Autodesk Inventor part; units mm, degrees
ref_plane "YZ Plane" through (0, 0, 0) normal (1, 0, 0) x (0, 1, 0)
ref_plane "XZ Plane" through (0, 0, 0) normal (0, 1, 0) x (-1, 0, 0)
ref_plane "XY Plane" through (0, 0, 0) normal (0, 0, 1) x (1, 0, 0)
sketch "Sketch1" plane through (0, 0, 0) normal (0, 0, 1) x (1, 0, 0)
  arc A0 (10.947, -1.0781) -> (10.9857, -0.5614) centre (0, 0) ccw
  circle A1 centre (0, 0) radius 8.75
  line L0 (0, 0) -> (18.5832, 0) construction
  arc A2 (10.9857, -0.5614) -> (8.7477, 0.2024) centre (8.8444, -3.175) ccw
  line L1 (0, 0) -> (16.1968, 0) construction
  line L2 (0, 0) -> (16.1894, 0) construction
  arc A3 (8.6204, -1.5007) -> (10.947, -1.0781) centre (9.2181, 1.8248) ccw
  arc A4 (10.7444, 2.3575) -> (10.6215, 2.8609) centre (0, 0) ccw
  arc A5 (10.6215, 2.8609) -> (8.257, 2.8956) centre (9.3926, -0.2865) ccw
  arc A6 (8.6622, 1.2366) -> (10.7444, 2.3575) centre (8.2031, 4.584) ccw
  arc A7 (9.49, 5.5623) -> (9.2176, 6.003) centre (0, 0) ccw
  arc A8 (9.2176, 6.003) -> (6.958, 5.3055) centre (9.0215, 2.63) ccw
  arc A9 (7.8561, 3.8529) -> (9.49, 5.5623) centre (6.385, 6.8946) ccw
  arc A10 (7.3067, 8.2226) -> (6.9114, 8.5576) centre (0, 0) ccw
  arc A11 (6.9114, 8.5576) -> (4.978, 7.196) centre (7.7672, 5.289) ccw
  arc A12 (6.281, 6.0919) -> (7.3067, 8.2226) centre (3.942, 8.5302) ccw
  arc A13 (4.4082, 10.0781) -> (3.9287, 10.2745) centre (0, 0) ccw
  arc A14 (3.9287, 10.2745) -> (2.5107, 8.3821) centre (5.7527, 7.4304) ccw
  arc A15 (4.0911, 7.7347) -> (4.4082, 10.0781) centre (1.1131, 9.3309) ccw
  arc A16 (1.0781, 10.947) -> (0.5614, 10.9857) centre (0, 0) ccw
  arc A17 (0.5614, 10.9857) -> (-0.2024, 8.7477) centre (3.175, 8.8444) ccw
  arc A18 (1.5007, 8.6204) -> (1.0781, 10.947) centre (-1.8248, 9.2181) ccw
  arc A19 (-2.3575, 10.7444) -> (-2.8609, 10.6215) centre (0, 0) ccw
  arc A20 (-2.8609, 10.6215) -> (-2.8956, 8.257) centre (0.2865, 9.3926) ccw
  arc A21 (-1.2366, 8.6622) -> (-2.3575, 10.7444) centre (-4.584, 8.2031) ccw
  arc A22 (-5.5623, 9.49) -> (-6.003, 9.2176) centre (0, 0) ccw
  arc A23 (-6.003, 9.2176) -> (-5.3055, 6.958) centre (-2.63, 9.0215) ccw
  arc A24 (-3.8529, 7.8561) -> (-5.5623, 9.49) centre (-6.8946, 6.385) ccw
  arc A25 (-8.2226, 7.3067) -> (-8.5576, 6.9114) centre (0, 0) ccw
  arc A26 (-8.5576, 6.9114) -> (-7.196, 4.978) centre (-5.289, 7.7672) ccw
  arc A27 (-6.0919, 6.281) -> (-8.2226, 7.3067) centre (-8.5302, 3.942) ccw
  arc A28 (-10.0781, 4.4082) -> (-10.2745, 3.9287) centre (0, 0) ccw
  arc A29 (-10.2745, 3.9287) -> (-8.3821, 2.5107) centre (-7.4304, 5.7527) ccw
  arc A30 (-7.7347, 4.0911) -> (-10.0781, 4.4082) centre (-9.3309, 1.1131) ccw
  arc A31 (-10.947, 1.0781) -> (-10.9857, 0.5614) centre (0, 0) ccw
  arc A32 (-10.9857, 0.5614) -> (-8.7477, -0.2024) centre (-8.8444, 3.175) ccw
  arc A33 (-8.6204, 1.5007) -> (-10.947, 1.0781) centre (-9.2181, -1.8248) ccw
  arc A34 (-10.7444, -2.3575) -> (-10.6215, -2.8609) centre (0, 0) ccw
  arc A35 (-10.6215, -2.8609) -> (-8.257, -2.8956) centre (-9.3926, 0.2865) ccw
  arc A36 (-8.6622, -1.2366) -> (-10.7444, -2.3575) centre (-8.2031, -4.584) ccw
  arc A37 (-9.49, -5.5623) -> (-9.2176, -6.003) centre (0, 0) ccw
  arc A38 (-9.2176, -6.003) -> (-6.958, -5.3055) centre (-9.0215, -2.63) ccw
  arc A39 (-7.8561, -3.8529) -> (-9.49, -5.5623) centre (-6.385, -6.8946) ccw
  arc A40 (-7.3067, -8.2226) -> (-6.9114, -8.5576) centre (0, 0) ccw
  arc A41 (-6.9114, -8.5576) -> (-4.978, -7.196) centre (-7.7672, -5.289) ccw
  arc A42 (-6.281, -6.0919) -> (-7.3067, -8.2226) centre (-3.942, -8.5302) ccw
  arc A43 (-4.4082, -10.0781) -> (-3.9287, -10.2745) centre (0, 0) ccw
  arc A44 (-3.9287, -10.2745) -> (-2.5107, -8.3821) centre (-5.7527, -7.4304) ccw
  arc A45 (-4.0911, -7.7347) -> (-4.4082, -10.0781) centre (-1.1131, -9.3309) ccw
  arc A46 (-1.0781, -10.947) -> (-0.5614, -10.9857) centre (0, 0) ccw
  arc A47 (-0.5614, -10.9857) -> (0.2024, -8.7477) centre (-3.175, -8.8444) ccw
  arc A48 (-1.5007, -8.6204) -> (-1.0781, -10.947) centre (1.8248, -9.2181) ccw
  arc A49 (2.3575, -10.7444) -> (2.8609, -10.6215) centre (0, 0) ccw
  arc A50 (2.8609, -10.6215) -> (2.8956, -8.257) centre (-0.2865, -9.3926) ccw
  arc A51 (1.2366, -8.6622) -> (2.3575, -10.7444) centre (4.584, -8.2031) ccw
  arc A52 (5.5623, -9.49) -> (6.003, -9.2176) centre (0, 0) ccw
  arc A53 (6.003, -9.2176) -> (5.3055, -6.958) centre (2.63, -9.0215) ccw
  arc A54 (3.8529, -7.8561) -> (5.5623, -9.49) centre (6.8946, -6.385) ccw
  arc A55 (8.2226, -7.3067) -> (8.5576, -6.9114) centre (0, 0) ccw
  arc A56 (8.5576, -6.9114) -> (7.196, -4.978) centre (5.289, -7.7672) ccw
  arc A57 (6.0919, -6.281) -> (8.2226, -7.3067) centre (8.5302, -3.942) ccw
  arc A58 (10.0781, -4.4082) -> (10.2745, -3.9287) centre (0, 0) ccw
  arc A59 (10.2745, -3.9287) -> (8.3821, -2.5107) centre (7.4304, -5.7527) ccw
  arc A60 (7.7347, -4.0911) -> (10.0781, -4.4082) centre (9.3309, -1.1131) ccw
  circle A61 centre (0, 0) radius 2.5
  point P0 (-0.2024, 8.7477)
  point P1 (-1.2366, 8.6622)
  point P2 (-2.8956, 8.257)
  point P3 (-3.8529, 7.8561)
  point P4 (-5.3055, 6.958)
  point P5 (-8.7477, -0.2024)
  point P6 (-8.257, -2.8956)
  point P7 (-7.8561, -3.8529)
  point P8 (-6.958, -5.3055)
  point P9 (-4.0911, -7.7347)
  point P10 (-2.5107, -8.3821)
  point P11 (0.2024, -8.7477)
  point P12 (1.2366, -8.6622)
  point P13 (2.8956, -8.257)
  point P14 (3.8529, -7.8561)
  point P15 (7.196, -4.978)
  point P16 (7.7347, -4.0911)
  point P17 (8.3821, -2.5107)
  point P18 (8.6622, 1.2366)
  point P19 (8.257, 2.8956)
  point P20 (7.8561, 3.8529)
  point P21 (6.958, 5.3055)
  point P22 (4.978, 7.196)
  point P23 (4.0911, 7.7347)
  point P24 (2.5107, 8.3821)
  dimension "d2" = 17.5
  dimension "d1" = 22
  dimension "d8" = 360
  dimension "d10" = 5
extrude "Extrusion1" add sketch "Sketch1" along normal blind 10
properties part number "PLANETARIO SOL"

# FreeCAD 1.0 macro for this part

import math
import FreeCAD as App
import Part
import Sketcher
from FreeCAD import Vector

doc = App.newDocument("Part")
body = doc.addObject("PartDesign::Body", "Body")

# Sketch on XY plane
sketch1 = doc.addObject("Sketcher::SketchObject", "Sketch")
body.addObject(sketch1)
sketch1.AttachmentSupport = (doc.XY_Plane, [""])
sketch1.MapMode = "FlatFace"
sketch1.addGeometry([
    Part.ArcOfCircle(Part.Circle(Vector(9.2181, 1.8248, 0), Vector(0, 0, 1), 3.378786), math.radians(-100.18912), math.radians(-59.222952)),  # 0
    Part.ArcOfCircle(Part.Circle(Vector(-0.137695, 0.011925, 0), Vector(0, 0, 1), 11.13816), math.radians(-5.616184), math.radians(-2.950544)),  # 1
    Part.ArcOfCircle(Part.Circle(Vector(8.8444, -3.175, 0), Vector(0, 0, 1), 3.378768), math.radians(50.672532), math.radians(91.640016)),  # 2
    Part.ArcOfCircle(Part.Circle(Vector(0, 0, 0), Vector(0, 0, 1), 8.75), math.radians(1.325445), math.radians(8.124546)),  # 3
    Part.ArcOfCircle(Part.Circle(Vector(8.2031, 4.584, 0), Vector(0, 0, 1), 3.378736), math.radians(-82.190537), math.radians(-41.222457)),  # 4
    Part.ArcOfCircle(Part.Circle(Vector(-0.086363, -0.020018, 0), Vector(0, 0, 1), 11.088643), math.radians(12.380928), math.radians(15.05867)),  # 5
    Part.ArcOfCircle(Part.Circle(Vector(9.392823, -0.285364, 0), Vector(0, 0, 1), 3.377665), math.radians(68.668384), math.radians(109.650059)),  # 6
    Part.ArcOfCircle(Part.Circle(Vector(0, 0, 0), Vector(0, 0, 1), 8.75), math.radians(19.324966), math.radians(26.124911)),  # 7
    Part.ArcOfCircle(Part.Circle(Vector(6.385, 6.8946, 0), Vector(0, 0, 1), 3.378768), math.radians(-64.189545), math.radians(-23.223306)),  # 8
    Part.ArcOfCircle(Part.Circle(Vector(-0.062015, -0.037336, 0), Vector(0, 0, 1), 11.072349), math.radians(30.379927), math.radians(33.061122)),  # 9
    Part.ArcOfCircle(Part.Circle(Vector(9.0215, 2.63, 0), Vector(0, 0, 1), 3.378696), math.radians(86.672674), math.radians(127.641483)),  # 10
    Part.ArcOfCircle(Part.Circle(Vector(0, 0, 0), Vector(0, 0, 1), 8.75), math.radians(37.325651), math.radians(44.124394)),  # 11
    Part.ArcOfCircle(Part.Circle(Vector(3.942, 8.5302, 0), Vector(0, 0, 1), 3.378791), math.radians(-46.190767), math.radians(-5.223446)),  # 12
    Part.ArcOfCircle(Part.Circle(Vector(-0.051491, -0.059339, 0), Vector(0, 0, 1), 11.078514), math.radians(48.380113), math.radians(51.06016)),  # 13
    Part.ArcOfCircle(Part.Circle(Vector(7.7672, 5.289, 0), Vector(0, 0, 1), 3.378778), math.radians(104.672097), math.radians(145.639248)),  # 14
    Part.ArcOfCircle(Part.Circle(Vector(0, 0, 0), Vector(0, 0, 1), 8.75), math.radians(55.325553), math.radians(62.12438)),  # 15
    Part.ArcOfCircle(Part.Circle(Vector(1.1131, 9.3309, 0), Vector(0, 0, 1), 3.378807), math.radians(-28.191189), math.radians(12.77638)),  # 16
    Part.ArcOfCircle(Part.Circle(Vector(0.009338, 0.022051, 0), Vector(0, 0, 1), 10.97607), math.radians(66.373773), math.radians(69.078869)),  # 17
    Part.ArcOfCircle(Part.Circle(Vector(5.7527, 7.4304, 0), Vector(0, 0, 1), 3.37874), math.radians(122.673176), math.radians(163.640221)),  # 18
    Part.ArcOfCircle(Part.Circle(Vector(0, 0, 0), Vector(0, 0, 1), 8.75), math.radians(73.325404), math.radians(80.124516)),  # 19
    Part.ArcOfCircle(Part.Circle(Vector(-1.8248, 9.2181, 0), Vector(0, 0, 1), 3.378786), math.radians(-10.18912), math.radians(30.777048)),  # 20
    Part.ArcOfCircle(Part.Circle(Vector(-0.011925, -0.137695, 0), Vector(0, 0, 1), 11.13816), math.radians(84.383816), math.radians(87.049456)),  # 21
    Part.ArcOfCircle(Part.Circle(Vector(3.175, 8.8444, 0), Vector(0, 0, 1), 3.378768), math.radians(140.672532), math.radians(181.640016)),  # 22
    Part.ArcOfCircle(Part.Circle(Vector(0, 0, 0), Vector(0, 0, 1), 8.75), math.radians(91.325445), math.radians(98.124546)),  # 23
    Part.ArcOfCircle(Part.Circle(Vector(-4.584, 8.2031, 0), Vector(0, 0, 1), 3.378736), math.radians(7.809463), math.radians(48.777543)),  # 24
    Part.ArcOfCircle(Part.Circle(Vector(0.020018, -0.086363, 0), Vector(0, 0, 1), 11.088643), math.radians(102.380928), math.radians(105.05867)),  # 25
    Part.ArcOfCircle(Part.Circle(Vector(0.285364, 9.392823, 0), Vector(0, 0, 1), 3.377665), math.radians(158.668384), math.radians(199.650059)),  # 26
    Part.ArcOfCircle(Part.Circle(Vector(0, 0, 0), Vector(0, 0, 1), 8.75), math.radians(109.324966), math.radians(116.124911)),  # 27
    Part.ArcOfCircle(Part.Circle(Vector(-6.8946, 6.385, 0), Vector(0, 0, 1), 3.378768), math.radians(25.810455), math.radians(66.776694)),  # 28
    Part.ArcOfCircle(Part.Circle(Vector(0.037336, -0.062015, 0), Vector(0, 0, 1), 11.072349), math.radians(120.379927), math.radians(123.061122)),  # 29
    Part.ArcOfCircle(Part.Circle(Vector(-2.63, 9.0215, 0), Vector(0, 0, 1), 3.378696), math.radians(176.672674), math.radians(217.641483)),  # 30
    Part.ArcOfCircle(Part.Circle(Vector(0, 0, 0), Vector(0, 0, 1), 8.75), math.radians(127.325651), math.radians(134.124394)),  # 31
    Part.ArcOfCircle(Part.Circle(Vector(-8.5302, 3.942, 0), Vector(0, 0, 1), 3.378791), math.radians(43.809233), math.radians(84.776554)),  # 32
    Part.ArcOfCircle(Part.Circle(Vector(0.059339, -0.051491, 0), Vector(0, 0, 1), 11.078514), math.radians(138.380113), math.radians(141.06016)),  # 33
    Part.ArcOfCircle(Part.Circle(Vector(-5.289, 7.7672, 0), Vector(0, 0, 1), 3.378778), math.radians(-165.327903), math.radians(-124.360752)),  # 34
    Part.ArcOfCircle(Part.Circle(Vector(0, 0, 0), Vector(0, 0, 1), 8.75), math.radians(145.325553), math.radians(152.12438)),  # 35
    Part.ArcOfCircle(Part.Circle(Vector(-9.3309, 1.1131, 0), Vector(0, 0, 1), 3.378807), math.radians(61.808811), math.radians(102.77638)),  # 36
    Part.ArcOfCircle(Part.Circle(Vector(-0.022051, 0.009338, 0), Vector(0, 0, 1), 10.97607), math.radians(156.373773), math.radians(159.078869)),  # 37
    Part.ArcOfCircle(Part.Circle(Vector(-7.4304, 5.7527, 0), Vector(0, 0, 1), 3.37874), math.radians(-147.326824), math.radians(-106.359779)),  # 38
    Part.ArcOfCircle(Part.Circle(Vector(0, 0, 0), Vector(0, 0, 1), 8.75), math.radians(163.325404), math.radians(170.124516)),  # 39
    Part.ArcOfCircle(Part.Circle(Vector(-9.2181, -1.8248, 0), Vector(0, 0, 1), 3.378786), math.radians(79.81088), math.radians(120.777048)),  # 40
    Part.ArcOfCircle(Part.Circle(Vector(0.137695, -0.011925, 0), Vector(0, 0, 1), 11.13816), math.radians(174.383816), math.radians(177.049456)),  # 41
    Part.ArcOfCircle(Part.Circle(Vector(-8.8444, 3.175, 0), Vector(0, 0, 1), 3.378768), math.radians(-129.327468), math.radians(-88.359984)),  # 42
    Part.ArcOfCircle(Part.Circle(Vector(0, 0, 0), Vector(0, 0, 1), 8.75), math.radians(-178.674555), math.radians(-171.875454)),  # 43
    Part.ArcOfCircle(Part.Circle(Vector(-8.2031, -4.584, 0), Vector(0, 0, 1), 3.378736), math.radians(97.809463), math.radians(138.777543)),  # 44
    Part.ArcOfCircle(Part.Circle(Vector(0.086363, 0.020018, 0), Vector(0, 0, 1), 11.088643), math.radians(-167.619072), math.radians(-164.94133)),  # 45
    Part.ArcOfCircle(Part.Circle(Vector(-9.392823, 0.285364, 0), Vector(0, 0, 1), 3.377665), math.radians(-111.331616), math.radians(-70.349941)),  # 46
    Part.ArcOfCircle(Part.Circle(Vector(0, 0, 0), Vector(0, 0, 1), 8.75), math.radians(-160.675034), math.radians(-153.875089)),  # 47
    Part.ArcOfCircle(Part.Circle(Vector(-6.385, -6.8946, 0), Vector(0, 0, 1), 3.378768), math.radians(115.810455), math.radians(156.776694)),  # 48
    Part.ArcOfCircle(Part.Circle(Vector(0.062015, 0.037336, 0), Vector(0, 0, 1), 11.072349), math.radians(-149.620073), math.radians(-146.938878)),  # 49
    Part.ArcOfCircle(Part.Circle(Vector(-9.0215, -2.63, 0), Vector(0, 0, 1), 3.378696), math.radians(-93.327326), math.radians(-52.358517)),  # 50
    Part.ArcOfCircle(Part.Circle(Vector(0, 0, 0), Vector(0, 0, 1), 8.75), math.radians(-142.674349), math.radians(-135.875606)),  # 51
    Part.ArcOfCircle(Part.Circle(Vector(-3.942, -8.5302, 0), Vector(0, 0, 1), 3.378791), math.radians(133.809233), math.radians(174.776554)),  # 52
    Part.ArcOfCircle(Part.Circle(Vector(0.051491, 0.059339, 0), Vector(0, 0, 1), 11.078514), math.radians(-131.619887), math.radians(-128.93984)),  # 53
    Part.ArcOfCircle(Part.Circle(Vector(-7.7672, -5.289, 0), Vector(0, 0, 1), 3.378778), math.radians(-75.327903), math.radians(-34.360752)),  # 54
    Part.ArcOfCircle(Part.Circle(Vector(0, 0, 0), Vector(0, 0, 1), 8.75), math.radians(-124.674447), math.radians(-117.87562)),  # 55
    Part.ArcOfCircle(Part.Circle(Vector(-1.1131, -9.3309, 0), Vector(0, 0, 1), 3.378807), math.radians(151.808811), math.radians(192.77638)),  # 56
    Part.ArcOfCircle(Part.Circle(Vector(-0.009338, -0.022051, 0), Vector(0, 0, 1), 10.97607), math.radians(-113.626227), math.radians(-110.921131)),  # 57
    Part.ArcOfCircle(Part.Circle(Vector(-5.7527, -7.4304, 0), Vector(0, 0, 1), 3.37874), math.radians(-57.326824), math.radians(-16.359779)),  # 58
    Part.ArcOfCircle(Part.Circle(Vector(0, 0, 0), Vector(0, 0, 1), 8.75), math.radians(-106.674596), math.radians(-99.875484)),  # 59
    Part.ArcOfCircle(Part.Circle(Vector(1.8248, -9.2181, 0), Vector(0, 0, 1), 3.378786), math.radians(169.81088), math.radians(210.777048)),  # 60
    Part.ArcOfCircle(Part.Circle(Vector(0.011925, 0.137695, 0), Vector(0, 0, 1), 11.13816), math.radians(-95.616184), math.radians(-92.950544)),  # 61
    Part.ArcOfCircle(Part.Circle(Vector(-3.175, -8.8444, 0), Vector(0, 0, 1), 3.378768), math.radians(-39.327468), math.radians(1.640016)),  # 62
    Part.ArcOfCircle(Part.Circle(Vector(0, 0, 0), Vector(0, 0, 1), 8.75), math.radians(-88.674555), math.radians(-81.875454)),  # 63
    Part.ArcOfCircle(Part.Circle(Vector(4.584, -8.2031, 0), Vector(0, 0, 1), 3.378736), math.radians(-172.190537), math.radians(-131.222457)),  # 64
    Part.ArcOfCircle(Part.Circle(Vector(-0.020018, 0.086363, 0), Vector(0, 0, 1), 11.088643), math.radians(-77.619072), math.radians(-74.94133)),  # 65
    Part.ArcOfCircle(Part.Circle(Vector(-0.285364, -9.392823, 0), Vector(0, 0, 1), 3.377665), math.radians(-21.331616), math.radians(19.650059)),  # 66
    Part.ArcOfCircle(Part.Circle(Vector(0, 0, 0), Vector(0, 0, 1), 8.75), math.radians(-70.675034), math.radians(-63.875089)),  # 67
    Part.ArcOfCircle(Part.Circle(Vector(6.8946, -6.385, 0), Vector(0, 0, 1), 3.378768), math.radians(-154.189545), math.radians(-113.223306)),  # 68
    Part.ArcOfCircle(Part.Circle(Vector(-0.037336, 0.062015, 0), Vector(0, 0, 1), 11.072349), math.radians(-59.620073), math.radians(-56.938878)),  # 69
    Part.ArcOfCircle(Part.Circle(Vector(2.63, -9.0215, 0), Vector(0, 0, 1), 3.378696), math.radians(-3.327326), math.radians(37.641483)),  # 70
    Part.ArcOfCircle(Part.Circle(Vector(0, 0, 0), Vector(0, 0, 1), 8.75), math.radians(-52.674349), math.radians(-45.875606)),  # 71
    Part.ArcOfCircle(Part.Circle(Vector(8.5302, -3.942, 0), Vector(0, 0, 1), 3.378791), math.radians(-136.190767), math.radians(-95.223446)),  # 72
    Part.ArcOfCircle(Part.Circle(Vector(-0.059339, 0.051491, 0), Vector(0, 0, 1), 11.078514), math.radians(-41.619887), math.radians(-38.93984)),  # 73
    Part.ArcOfCircle(Part.Circle(Vector(5.289, -7.7672, 0), Vector(0, 0, 1), 3.378778), math.radians(14.672097), math.radians(55.639248)),  # 74
    Part.ArcOfCircle(Part.Circle(Vector(0, 0, 0), Vector(0, 0, 1), 8.75), math.radians(-34.674447), math.radians(-27.87562)),  # 75
    Part.ArcOfCircle(Part.Circle(Vector(9.3309, -1.1131, 0), Vector(0, 0, 1), 3.378807), math.radians(-118.191189), math.radians(-77.22362)),  # 76
    Part.ArcOfCircle(Part.Circle(Vector(0.022051, -0.009338, 0), Vector(0, 0, 1), 10.97607), math.radians(-23.626227), math.radians(-20.921131)),  # 77
    Part.ArcOfCircle(Part.Circle(Vector(7.4304, -5.7527, 0), Vector(0, 0, 1), 3.37874), math.radians(32.673176), math.radians(73.640221)),  # 78
    Part.ArcOfCircle(Part.Circle(Vector(0, 0, 0), Vector(0, 0, 1), 8.75), math.radians(-16.674596), math.radians(-9.875484)),  # 79
    Part.Circle(Vector(0, 0, 0), Vector(0, 0, 1), 2.5),  # 80
], False)
sketch1.addConstraint([
    Sketcher.Constraint("Coincident", 0, 2, 1, 1),
    Sketcher.Constraint("Coincident", 1, 2, 2, 1),
    Sketcher.Constraint("Coincident", 2, 2, 3, 1),
    Sketcher.Constraint("Coincident", 3, 2, 4, 1),
    Sketcher.Constraint("Coincident", 4, 2, 5, 1),
    Sketcher.Constraint("Coincident", 5, 2, 6, 1),
    Sketcher.Constraint("Coincident", 6, 2, 7, 1),
    Sketcher.Constraint("Coincident", 7, 2, 8, 1),
    Sketcher.Constraint("Coincident", 8, 2, 9, 1),
    Sketcher.Constraint("Coincident", 9, 2, 10, 1),
    Sketcher.Constraint("Coincident", 10, 2, 11, 1),
    Sketcher.Constraint("Coincident", 11, 2, 12, 1),
    Sketcher.Constraint("Coincident", 12, 2, 13, 1),
    Sketcher.Constraint("Coincident", 13, 2, 14, 1),
    Sketcher.Constraint("Coincident", 14, 2, 15, 1),
    Sketcher.Constraint("Coincident", 15, 2, 16, 1),
    Sketcher.Constraint("Coincident", 16, 2, 17, 1),
    Sketcher.Constraint("Coincident", 17, 2, 18, 1),
    Sketcher.Constraint("Coincident", 18, 2, 19, 1),
    Sketcher.Constraint("Coincident", 19, 2, 20, 1),
    Sketcher.Constraint("Coincident", 20, 2, 21, 1),
    Sketcher.Constraint("Coincident", 21, 2, 22, 1),
    Sketcher.Constraint("Coincident", 22, 2, 23, 1),
    Sketcher.Constraint("Coincident", 23, 2, 24, 1),
    Sketcher.Constraint("Coincident", 24, 2, 25, 1),
    Sketcher.Constraint("Coincident", 25, 2, 26, 1),
    Sketcher.Constraint("Coincident", 26, 2, 27, 1),
    Sketcher.Constraint("Coincident", 27, 2, 28, 1),
    Sketcher.Constraint("Coincident", 28, 2, 29, 1),
    Sketcher.Constraint("Coincident", 29, 2, 30, 1),
    Sketcher.Constraint("Coincident", 30, 2, 31, 1),
    Sketcher.Constraint("Coincident", 31, 2, 32, 1),
    Sketcher.Constraint("Coincident", 32, 2, 33, 1),
    Sketcher.Constraint("Coincident", 33, 2, 34, 1),
    Sketcher.Constraint("Coincident", 34, 2, 35, 1),
    Sketcher.Constraint("Coincident", 35, 2, 36, 1),
    Sketcher.Constraint("Coincident", 36, 2, 37, 1),
    Sketcher.Constraint("Coincident", 37, 2, 38, 1),
    Sketcher.Constraint("Coincident", 38, 2, 39, 1),
    Sketcher.Constraint("Coincident", 39, 2, 40, 1),
    Sketcher.Constraint("Coincident", 40, 2, 41, 1),
    Sketcher.Constraint("Coincident", 41, 2, 42, 1),
    Sketcher.Constraint("Coincident", 42, 2, 43, 1),
    Sketcher.Constraint("Coincident", 43, 2, 44, 1),
    Sketcher.Constraint("Coincident", 44, 2, 45, 1),
    Sketcher.Constraint("Coincident", 45, 2, 46, 1),
    Sketcher.Constraint("Coincident", 46, 2, 47, 1),
    Sketcher.Constraint("Coincident", 47, 2, 48, 1),
    Sketcher.Constraint("Coincident", 48, 2, 49, 1),
    Sketcher.Constraint("Coincident", 49, 2, 50, 1),
    Sketcher.Constraint("Coincident", 50, 2, 51, 1),
    Sketcher.Constraint("Coincident", 51, 2, 52, 1),
    Sketcher.Constraint("Coincident", 52, 2, 53, 1),
    Sketcher.Constraint("Coincident", 53, 2, 54, 1),
    Sketcher.Constraint("Coincident", 54, 2, 55, 1),
    Sketcher.Constraint("Coincident", 55, 2, 56, 1),
    Sketcher.Constraint("Coincident", 56, 2, 57, 1),
    Sketcher.Constraint("Coincident", 57, 2, 58, 1),
    Sketcher.Constraint("Coincident", 58, 2, 59, 1),
    Sketcher.Constraint("Coincident", 59, 2, 60, 1),
    Sketcher.Constraint("Coincident", 60, 2, 61, 1),
    Sketcher.Constraint("Coincident", 61, 2, 62, 1),
    Sketcher.Constraint("Coincident", 62, 2, 63, 1),
    Sketcher.Constraint("Coincident", 63, 2, 64, 1),
    Sketcher.Constraint("Coincident", 64, 2, 65, 1),
    Sketcher.Constraint("Coincident", 65, 2, 66, 1),
    Sketcher.Constraint("Coincident", 66, 2, 67, 1),
    Sketcher.Constraint("Coincident", 67, 2, 68, 1),
    Sketcher.Constraint("Coincident", 68, 2, 69, 1),
    Sketcher.Constraint("Coincident", 69, 2, 70, 1),
    Sketcher.Constraint("Coincident", 70, 2, 71, 1),
    Sketcher.Constraint("Coincident", 71, 2, 72, 1),
    Sketcher.Constraint("Coincident", 72, 2, 73, 1),
    Sketcher.Constraint("Coincident", 73, 2, 74, 1),
    Sketcher.Constraint("Coincident", 74, 2, 75, 1),
    Sketcher.Constraint("Coincident", 75, 2, 76, 1),
    Sketcher.Constraint("Coincident", 76, 2, 77, 1),
    Sketcher.Constraint("Coincident", 77, 2, 78, 1),
    Sketcher.Constraint("Coincident", 78, 2, 79, 1),
    Sketcher.Constraint("Coincident", 79, 2, 0, 1),
    Sketcher.Constraint("Coincident", 3, 3, -1, 1),
    Sketcher.Constraint("Coincident", 7, 3, -1, 1),
    Sketcher.Constraint("Coincident", 11, 3, -1, 1),
    Sketcher.Constraint("Coincident", 15, 3, -1, 1),
    Sketcher.Constraint("Coincident", 19, 3, -1, 1),
    Sketcher.Constraint("Coincident", 23, 3, -1, 1),
    Sketcher.Constraint("Coincident", 27, 3, -1, 1),
    Sketcher.Constraint("Coincident", 31, 3, -1, 1),
    Sketcher.Constraint("Coincident", 35, 3, -1, 1),
    Sketcher.Constraint("Coincident", 39, 3, -1, 1),
    Sketcher.Constraint("Coincident", 43, 3, -1, 1),
    Sketcher.Constraint("Coincident", 47, 3, -1, 1),
    Sketcher.Constraint("Coincident", 51, 3, -1, 1),
    Sketcher.Constraint("Coincident", 55, 3, -1, 1),
    Sketcher.Constraint("Coincident", 59, 3, -1, 1),
    Sketcher.Constraint("Coincident", 63, 3, -1, 1),
    Sketcher.Constraint("Coincident", 67, 3, -1, 1),
    Sketcher.Constraint("Coincident", 71, 3, -1, 1),
    Sketcher.Constraint("Coincident", 75, 3, -1, 1),
    Sketcher.Constraint("Coincident", 79, 3, -1, 1),
    Sketcher.Constraint("Coincident", 80, 3, -1, 1),
    Sketcher.Constraint("Equal", 0, 2),
    Sketcher.Constraint("Equal", 2, 4),
    Sketcher.Constraint("Equal", 3, 7),
    Sketcher.Constraint("Equal", 4, 8),
    Sketcher.Constraint("Equal", 8, 10),
    Sketcher.Constraint("Equal", 7, 11),
    Sketcher.Constraint("Equal", 10, 12),
    Sketcher.Constraint("Equal", 12, 14),
    Sketcher.Constraint("Equal", 11, 15),
    Sketcher.Constraint("Equal", 14, 16),
    Sketcher.Constraint("Equal", 16, 18),
    Sketcher.Constraint("Equal", 15, 19),
    Sketcher.Constraint("Equal", 18, 20),
    Sketcher.Constraint("Equal", 1, 21),
    Sketcher.Constraint("Equal", 20, 22),
    Sketcher.Constraint("Equal", 19, 23),
    Sketcher.Constraint("Equal", 22, 24),
    Sketcher.Constraint("Equal", 5, 25),
    Sketcher.Constraint("Equal", 6, 26),
    Sketcher.Constraint("Equal", 23, 27),
    Sketcher.Constraint("Equal", 24, 28),
    Sketcher.Constraint("Equal", 9, 29),
    Sketcher.Constraint("Equal", 28, 30),
    Sketcher.Constraint("Equal", 27, 31),
    Sketcher.Constraint("Equal", 30, 32),
    Sketcher.Constraint("Equal", 13, 33),
    Sketcher.Constraint("Equal", 32, 34),
    Sketcher.Constraint("Equal", 31, 35),
    Sketcher.Constraint("Equal", 34, 36),
    Sketcher.Constraint("Equal", 17, 37),
    Sketcher.Constraint("Equal", 36, 38),
    Sketcher.Constraint("Equal", 35, 39),
    Sketcher.Constraint("Equal", 38, 40),
    Sketcher.Constraint("Equal", 21, 41),
    Sketcher.Constraint("Equal", 40, 42),
    Sketcher.Constraint("Equal", 39, 43),
    Sketcher.Constraint("Equal", 42, 44),
    Sketcher.Constraint("Equal", 25, 45),
    Sketcher.Constraint("Equal", 26, 46),
    Sketcher.Constraint("Equal", 43, 47),
    Sketcher.Constraint("Equal", 44, 48),
    Sketcher.Constraint("Equal", 29, 49),
    Sketcher.Constraint("Equal", 48, 50),
    Sketcher.Constraint("Equal", 47, 51),
    Sketcher.Constraint("Equal", 50, 52),
    Sketcher.Constraint("Equal", 33, 53),
    Sketcher.Constraint("Equal", 52, 54),
    Sketcher.Constraint("Equal", 51, 55),
    Sketcher.Constraint("Equal", 54, 56),
    Sketcher.Constraint("Equal", 37, 57),
    Sketcher.Constraint("Equal", 56, 58),
    Sketcher.Constraint("Equal", 55, 59),
    Sketcher.Constraint("Equal", 58, 60),
    Sketcher.Constraint("Equal", 41, 61),
    Sketcher.Constraint("Equal", 60, 62),
    Sketcher.Constraint("Equal", 59, 63),
    Sketcher.Constraint("Equal", 62, 64),
    Sketcher.Constraint("Equal", 45, 65),
    Sketcher.Constraint("Equal", 46, 66),
    Sketcher.Constraint("Equal", 63, 67),
    Sketcher.Constraint("Equal", 64, 68),
    Sketcher.Constraint("Equal", 49, 69),
    Sketcher.Constraint("Equal", 68, 70),
    Sketcher.Constraint("Equal", 67, 71),
    Sketcher.Constraint("Equal", 70, 72),
    Sketcher.Constraint("Equal", 53, 73),
    Sketcher.Constraint("Equal", 72, 74),
    Sketcher.Constraint("Equal", 71, 75),
    Sketcher.Constraint("Equal", 74, 76),
    Sketcher.Constraint("Equal", 57, 77),
    Sketcher.Constraint("Equal", 76, 78),
    Sketcher.Constraint("Equal", 75, 79),
    Sketcher.Constraint("Symmetric", 0, 3, 40, 3, -1, 1),
    Sketcher.Constraint("Symmetric", 1, 3, 41, 3, -1, 1),
    Sketcher.Constraint("Symmetric", 2, 3, 42, 3, -1, 1),
    Sketcher.Constraint("Symmetric", 4, 3, 44, 3, -1, 1),
    Sketcher.Constraint("Symmetric", 5, 3, 45, 3, -1, 1),
    Sketcher.Constraint("Symmetric", 6, 3, 46, 3, -1, 1),
    Sketcher.Constraint("Symmetric", 8, 3, 48, 3, -1, 1),
    Sketcher.Constraint("Symmetric", 9, 3, 49, 3, -1, 1),
    Sketcher.Constraint("Symmetric", 10, 3, 50, 3, -1, 1),
    Sketcher.Constraint("Symmetric", 12, 3, 52, 3, -1, 1),
    Sketcher.Constraint("Symmetric", 13, 3, 53, 3, -1, 1),
    Sketcher.Constraint("Symmetric", 14, 3, 54, 3, -1, 1),
    Sketcher.Constraint("Symmetric", 16, 3, 56, 3, -1, 1),
    Sketcher.Constraint("Symmetric", 17, 3, 57, 3, -1, 1),
    Sketcher.Constraint("Symmetric", 18, 3, 58, 3, -1, 1),
    Sketcher.Constraint("Symmetric", 20, 3, 60, 3, -1, 1),
    Sketcher.Constraint("Symmetric", 21, 3, 61, 3, -1, 1),
    Sketcher.Constraint("Symmetric", 22, 3, 62, 3, -1, 1),
    Sketcher.Constraint("Symmetric", 24, 3, 64, 3, -1, 1),
    Sketcher.Constraint("Symmetric", 25, 3, 65, 3, -1, 1),
    Sketcher.Constraint("Symmetric", 26, 3, 66, 3, -1, 1),
    Sketcher.Constraint("Symmetric", 28, 3, 68, 3, -1, 1),
    Sketcher.Constraint("Symmetric", 29, 3, 69, 3, -1, 1),
    Sketcher.Constraint("Symmetric", 30, 3, 70, 3, -1, 1),
    Sketcher.Constraint("Symmetric", 32, 3, 72, 3, -1, 1),
    Sketcher.Constraint("Symmetric", 33, 3, 73, 3, -1, 1),
    Sketcher.Constraint("Symmetric", 34, 3, 74, 3, -1, 1),
    Sketcher.Constraint("Symmetric", 36, 3, 76, 3, -1, 1),
    Sketcher.Constraint("Symmetric", 37, 3, 77, 3, -1, 1),
    Sketcher.Constraint("Symmetric", 38, 3, 78, 3, -1, 1),
    Sketcher.Constraint("Diameter", 80, 5.0),
    Sketcher.Constraint("Radius", 3, 8.75),
    Sketcher.Constraint("Radius", 17, 10.976),
    Sketcher.Constraint("Radius", 0, 3.3788),
    Sketcher.Constraint("Radius", 1, 11.1382),
    Sketcher.Constraint("Radius", 5, 11.0886),
    Sketcher.Constraint("Radius", 6, 3.3777),
    Sketcher.Constraint("Radius", 9, 11.0723),
    Sketcher.Constraint("Radius", 13, 11.0785),
    Sketcher.Constraint("DistanceY", 5, 3, -1, 1, 0.02),
    Sketcher.Constraint("DistanceY", -1, 1, 10, 3, 2.63),
    Sketcher.Constraint("DistanceX", -1, 1, 25, 3, 0.02),
    Sketcher.Constraint("DistanceX", 30, 3, -1, 1, 2.63),
    Sketcher.Constraint("DistanceX", -1, 1, 8, 2, 9.49),
    Sketcher.Constraint("DistanceY", -1, 1, 28, 2, 9.49),
    Sketcher.Constraint("DistanceX", -1, 1, 0, 3, 9.218),
    Sketcher.Constraint("DistanceY", -1, 1, 1, 3, 0.012),
    Sketcher.Constraint("DistanceY", 2, 3, -1, 1, 3.175),
    Sketcher.Constraint("DistanceX", -1, 1, 4, 3, 8.203),
    Sketcher.Constraint("DistanceY", -1, 1, 4, 3, 4.584),
    Sketcher.Constraint("DistanceX", -1, 1, 8, 3, 6.385),
    Sketcher.Constraint("DistanceX", 9, 3, -1, 1, 0.062),
    Sketcher.Constraint("DistanceX", -1, 1, 12, 3, 3.942),
    Sketcher.Constraint("DistanceY", -1, 1, 14, 3, 5.289),
    Sketcher.Constraint("DistanceX", -1, 1, 16, 3, 1.113),
    Sketcher.Constraint("DistanceY", -1, 1, 16, 3, 9.331),
    Sketcher.Constraint("DistanceY", -1, 1, 17, 3, 0.022),
    Sketcher.Constraint("DistanceY", -1, 1, 20, 3, 9.218),
    Sketcher.Constraint("DistanceX", 21, 3, -1, 1, 0.012),
    Sketcher.Constraint("DistanceX", -1, 1, 22, 3, 3.175),
    Sketcher.Constraint("DistanceX", 24, 3, -1, 1, 4.584),
    Sketcher.Constraint("DistanceY", -1, 1, 24, 3, 8.203),
    Sketcher.Constraint("DistanceY", -1, 1, 28, 3, 6.385),
    Sketcher.Constraint("DistanceY", 29, 3, -1, 1, 0.062),
    Sketcher.Constraint("DistanceY", -1, 1, 32, 3, 3.942),
    Sketcher.Constraint("DistanceX", 34, 3, -1, 1, 5.289),
    Sketcher.Constraint("DistanceX", 36, 3, -1, 1, 9.331),
    Sketcher.Constraint("DistanceY", -1, 1, 36, 3, 1.113),
    Sketcher.Constraint("DistanceX", 37, 3, -1, 1, 0.022),
    Sketcher.Constraint("DistanceX", -1, 1, 0, 2, 10.947),
    Sketcher.Constraint("DistanceY", -1, 1, 5, 2, 2.861),
    Sketcher.Constraint("DistanceX", -1, 1, 6, 2, 8.257),
    Sketcher.Constraint("DistanceX", -1, 1, 7, 2, 7.856),
    Sketcher.Constraint("DistanceY", -1, 1, 9, 2, 6.003),
    Sketcher.Constraint("DistanceX", -1, 1, 11, 2, 6.281),
    Sketcher.Constraint("DistanceX", -1, 1, 14, 2, 4.978),
    Sketcher.Constraint("DistanceY", -1, 1, 16, 2, 10.078),
    Sketcher.Constraint("DistanceY", -1, 1, 18, 2, 8.382),
    Sketcher.Constraint("DistanceY", -1, 1, 20, 2, 10.947),
    Sketcher.Constraint("DistanceX", 25, 2, -1, 1, 2.861),
    Sketcher.Constraint("DistanceY", -1, 1, 26, 2, 8.257),
    Sketcher.Constraint("DistanceX", 27, 2, -1, 1, 3.853),
    Sketcher.Constraint("DistanceX", 29, 2, -1, 1, 6.003),
    Sketcher.Constraint("DistanceX", 31, 2, -1, 1, 6.092),
    Sketcher.Constraint("DistanceX", 34, 2, -1, 1, 7.196),
    Sketcher.Constraint("DistanceX", 36, 2, -1, 1, 10.078),
    Sketcher.Constraint("DistanceX", 38, 2, -1, 1, 8.382),
    Sketcher.Constraint("DistanceY", -1, 1, 0, 3, 1.8248),
    Sketcher.Constraint("DistanceX", -1, 1, 2, 3, 8.8444),
    Sketcher.Constraint("DistanceX", 5, 3, -1, 1, 0.0864),
    Sketcher.Constraint("DistanceX", 13, 3, -1, 1, 0.0515),
    Sketcher.Constraint("DistanceY", 13, 3, -1, 1, 0.0593),
    Sketcher.Constraint("DistanceX", -1, 1, 18, 3, 5.7527),
    Sketcher.Constraint("DistanceX", 20, 3, -1, 1, 1.8248),
    Sketcher.Constraint("DistanceY", -1, 1, 22, 3, 8.8444),
    Sketcher.Constraint("DistanceY", 25, 3, -1, 1, 0.0864),
    Sketcher.Constraint("DistanceX", -1, 1, 33, 3, 0.0593),
    Sketcher.Constraint("DistanceY", 33, 3, -1, 1, 0.0515),
    Sketcher.Constraint("DistanceX", 38, 3, -1, 1, 7.4304),
])
pad1 = doc.addObject("PartDesign::Pad", "Pad")
body.addObject(pad1)
pad1.Profile = sketch1
pad1.Length = 10

doc.recompute()
